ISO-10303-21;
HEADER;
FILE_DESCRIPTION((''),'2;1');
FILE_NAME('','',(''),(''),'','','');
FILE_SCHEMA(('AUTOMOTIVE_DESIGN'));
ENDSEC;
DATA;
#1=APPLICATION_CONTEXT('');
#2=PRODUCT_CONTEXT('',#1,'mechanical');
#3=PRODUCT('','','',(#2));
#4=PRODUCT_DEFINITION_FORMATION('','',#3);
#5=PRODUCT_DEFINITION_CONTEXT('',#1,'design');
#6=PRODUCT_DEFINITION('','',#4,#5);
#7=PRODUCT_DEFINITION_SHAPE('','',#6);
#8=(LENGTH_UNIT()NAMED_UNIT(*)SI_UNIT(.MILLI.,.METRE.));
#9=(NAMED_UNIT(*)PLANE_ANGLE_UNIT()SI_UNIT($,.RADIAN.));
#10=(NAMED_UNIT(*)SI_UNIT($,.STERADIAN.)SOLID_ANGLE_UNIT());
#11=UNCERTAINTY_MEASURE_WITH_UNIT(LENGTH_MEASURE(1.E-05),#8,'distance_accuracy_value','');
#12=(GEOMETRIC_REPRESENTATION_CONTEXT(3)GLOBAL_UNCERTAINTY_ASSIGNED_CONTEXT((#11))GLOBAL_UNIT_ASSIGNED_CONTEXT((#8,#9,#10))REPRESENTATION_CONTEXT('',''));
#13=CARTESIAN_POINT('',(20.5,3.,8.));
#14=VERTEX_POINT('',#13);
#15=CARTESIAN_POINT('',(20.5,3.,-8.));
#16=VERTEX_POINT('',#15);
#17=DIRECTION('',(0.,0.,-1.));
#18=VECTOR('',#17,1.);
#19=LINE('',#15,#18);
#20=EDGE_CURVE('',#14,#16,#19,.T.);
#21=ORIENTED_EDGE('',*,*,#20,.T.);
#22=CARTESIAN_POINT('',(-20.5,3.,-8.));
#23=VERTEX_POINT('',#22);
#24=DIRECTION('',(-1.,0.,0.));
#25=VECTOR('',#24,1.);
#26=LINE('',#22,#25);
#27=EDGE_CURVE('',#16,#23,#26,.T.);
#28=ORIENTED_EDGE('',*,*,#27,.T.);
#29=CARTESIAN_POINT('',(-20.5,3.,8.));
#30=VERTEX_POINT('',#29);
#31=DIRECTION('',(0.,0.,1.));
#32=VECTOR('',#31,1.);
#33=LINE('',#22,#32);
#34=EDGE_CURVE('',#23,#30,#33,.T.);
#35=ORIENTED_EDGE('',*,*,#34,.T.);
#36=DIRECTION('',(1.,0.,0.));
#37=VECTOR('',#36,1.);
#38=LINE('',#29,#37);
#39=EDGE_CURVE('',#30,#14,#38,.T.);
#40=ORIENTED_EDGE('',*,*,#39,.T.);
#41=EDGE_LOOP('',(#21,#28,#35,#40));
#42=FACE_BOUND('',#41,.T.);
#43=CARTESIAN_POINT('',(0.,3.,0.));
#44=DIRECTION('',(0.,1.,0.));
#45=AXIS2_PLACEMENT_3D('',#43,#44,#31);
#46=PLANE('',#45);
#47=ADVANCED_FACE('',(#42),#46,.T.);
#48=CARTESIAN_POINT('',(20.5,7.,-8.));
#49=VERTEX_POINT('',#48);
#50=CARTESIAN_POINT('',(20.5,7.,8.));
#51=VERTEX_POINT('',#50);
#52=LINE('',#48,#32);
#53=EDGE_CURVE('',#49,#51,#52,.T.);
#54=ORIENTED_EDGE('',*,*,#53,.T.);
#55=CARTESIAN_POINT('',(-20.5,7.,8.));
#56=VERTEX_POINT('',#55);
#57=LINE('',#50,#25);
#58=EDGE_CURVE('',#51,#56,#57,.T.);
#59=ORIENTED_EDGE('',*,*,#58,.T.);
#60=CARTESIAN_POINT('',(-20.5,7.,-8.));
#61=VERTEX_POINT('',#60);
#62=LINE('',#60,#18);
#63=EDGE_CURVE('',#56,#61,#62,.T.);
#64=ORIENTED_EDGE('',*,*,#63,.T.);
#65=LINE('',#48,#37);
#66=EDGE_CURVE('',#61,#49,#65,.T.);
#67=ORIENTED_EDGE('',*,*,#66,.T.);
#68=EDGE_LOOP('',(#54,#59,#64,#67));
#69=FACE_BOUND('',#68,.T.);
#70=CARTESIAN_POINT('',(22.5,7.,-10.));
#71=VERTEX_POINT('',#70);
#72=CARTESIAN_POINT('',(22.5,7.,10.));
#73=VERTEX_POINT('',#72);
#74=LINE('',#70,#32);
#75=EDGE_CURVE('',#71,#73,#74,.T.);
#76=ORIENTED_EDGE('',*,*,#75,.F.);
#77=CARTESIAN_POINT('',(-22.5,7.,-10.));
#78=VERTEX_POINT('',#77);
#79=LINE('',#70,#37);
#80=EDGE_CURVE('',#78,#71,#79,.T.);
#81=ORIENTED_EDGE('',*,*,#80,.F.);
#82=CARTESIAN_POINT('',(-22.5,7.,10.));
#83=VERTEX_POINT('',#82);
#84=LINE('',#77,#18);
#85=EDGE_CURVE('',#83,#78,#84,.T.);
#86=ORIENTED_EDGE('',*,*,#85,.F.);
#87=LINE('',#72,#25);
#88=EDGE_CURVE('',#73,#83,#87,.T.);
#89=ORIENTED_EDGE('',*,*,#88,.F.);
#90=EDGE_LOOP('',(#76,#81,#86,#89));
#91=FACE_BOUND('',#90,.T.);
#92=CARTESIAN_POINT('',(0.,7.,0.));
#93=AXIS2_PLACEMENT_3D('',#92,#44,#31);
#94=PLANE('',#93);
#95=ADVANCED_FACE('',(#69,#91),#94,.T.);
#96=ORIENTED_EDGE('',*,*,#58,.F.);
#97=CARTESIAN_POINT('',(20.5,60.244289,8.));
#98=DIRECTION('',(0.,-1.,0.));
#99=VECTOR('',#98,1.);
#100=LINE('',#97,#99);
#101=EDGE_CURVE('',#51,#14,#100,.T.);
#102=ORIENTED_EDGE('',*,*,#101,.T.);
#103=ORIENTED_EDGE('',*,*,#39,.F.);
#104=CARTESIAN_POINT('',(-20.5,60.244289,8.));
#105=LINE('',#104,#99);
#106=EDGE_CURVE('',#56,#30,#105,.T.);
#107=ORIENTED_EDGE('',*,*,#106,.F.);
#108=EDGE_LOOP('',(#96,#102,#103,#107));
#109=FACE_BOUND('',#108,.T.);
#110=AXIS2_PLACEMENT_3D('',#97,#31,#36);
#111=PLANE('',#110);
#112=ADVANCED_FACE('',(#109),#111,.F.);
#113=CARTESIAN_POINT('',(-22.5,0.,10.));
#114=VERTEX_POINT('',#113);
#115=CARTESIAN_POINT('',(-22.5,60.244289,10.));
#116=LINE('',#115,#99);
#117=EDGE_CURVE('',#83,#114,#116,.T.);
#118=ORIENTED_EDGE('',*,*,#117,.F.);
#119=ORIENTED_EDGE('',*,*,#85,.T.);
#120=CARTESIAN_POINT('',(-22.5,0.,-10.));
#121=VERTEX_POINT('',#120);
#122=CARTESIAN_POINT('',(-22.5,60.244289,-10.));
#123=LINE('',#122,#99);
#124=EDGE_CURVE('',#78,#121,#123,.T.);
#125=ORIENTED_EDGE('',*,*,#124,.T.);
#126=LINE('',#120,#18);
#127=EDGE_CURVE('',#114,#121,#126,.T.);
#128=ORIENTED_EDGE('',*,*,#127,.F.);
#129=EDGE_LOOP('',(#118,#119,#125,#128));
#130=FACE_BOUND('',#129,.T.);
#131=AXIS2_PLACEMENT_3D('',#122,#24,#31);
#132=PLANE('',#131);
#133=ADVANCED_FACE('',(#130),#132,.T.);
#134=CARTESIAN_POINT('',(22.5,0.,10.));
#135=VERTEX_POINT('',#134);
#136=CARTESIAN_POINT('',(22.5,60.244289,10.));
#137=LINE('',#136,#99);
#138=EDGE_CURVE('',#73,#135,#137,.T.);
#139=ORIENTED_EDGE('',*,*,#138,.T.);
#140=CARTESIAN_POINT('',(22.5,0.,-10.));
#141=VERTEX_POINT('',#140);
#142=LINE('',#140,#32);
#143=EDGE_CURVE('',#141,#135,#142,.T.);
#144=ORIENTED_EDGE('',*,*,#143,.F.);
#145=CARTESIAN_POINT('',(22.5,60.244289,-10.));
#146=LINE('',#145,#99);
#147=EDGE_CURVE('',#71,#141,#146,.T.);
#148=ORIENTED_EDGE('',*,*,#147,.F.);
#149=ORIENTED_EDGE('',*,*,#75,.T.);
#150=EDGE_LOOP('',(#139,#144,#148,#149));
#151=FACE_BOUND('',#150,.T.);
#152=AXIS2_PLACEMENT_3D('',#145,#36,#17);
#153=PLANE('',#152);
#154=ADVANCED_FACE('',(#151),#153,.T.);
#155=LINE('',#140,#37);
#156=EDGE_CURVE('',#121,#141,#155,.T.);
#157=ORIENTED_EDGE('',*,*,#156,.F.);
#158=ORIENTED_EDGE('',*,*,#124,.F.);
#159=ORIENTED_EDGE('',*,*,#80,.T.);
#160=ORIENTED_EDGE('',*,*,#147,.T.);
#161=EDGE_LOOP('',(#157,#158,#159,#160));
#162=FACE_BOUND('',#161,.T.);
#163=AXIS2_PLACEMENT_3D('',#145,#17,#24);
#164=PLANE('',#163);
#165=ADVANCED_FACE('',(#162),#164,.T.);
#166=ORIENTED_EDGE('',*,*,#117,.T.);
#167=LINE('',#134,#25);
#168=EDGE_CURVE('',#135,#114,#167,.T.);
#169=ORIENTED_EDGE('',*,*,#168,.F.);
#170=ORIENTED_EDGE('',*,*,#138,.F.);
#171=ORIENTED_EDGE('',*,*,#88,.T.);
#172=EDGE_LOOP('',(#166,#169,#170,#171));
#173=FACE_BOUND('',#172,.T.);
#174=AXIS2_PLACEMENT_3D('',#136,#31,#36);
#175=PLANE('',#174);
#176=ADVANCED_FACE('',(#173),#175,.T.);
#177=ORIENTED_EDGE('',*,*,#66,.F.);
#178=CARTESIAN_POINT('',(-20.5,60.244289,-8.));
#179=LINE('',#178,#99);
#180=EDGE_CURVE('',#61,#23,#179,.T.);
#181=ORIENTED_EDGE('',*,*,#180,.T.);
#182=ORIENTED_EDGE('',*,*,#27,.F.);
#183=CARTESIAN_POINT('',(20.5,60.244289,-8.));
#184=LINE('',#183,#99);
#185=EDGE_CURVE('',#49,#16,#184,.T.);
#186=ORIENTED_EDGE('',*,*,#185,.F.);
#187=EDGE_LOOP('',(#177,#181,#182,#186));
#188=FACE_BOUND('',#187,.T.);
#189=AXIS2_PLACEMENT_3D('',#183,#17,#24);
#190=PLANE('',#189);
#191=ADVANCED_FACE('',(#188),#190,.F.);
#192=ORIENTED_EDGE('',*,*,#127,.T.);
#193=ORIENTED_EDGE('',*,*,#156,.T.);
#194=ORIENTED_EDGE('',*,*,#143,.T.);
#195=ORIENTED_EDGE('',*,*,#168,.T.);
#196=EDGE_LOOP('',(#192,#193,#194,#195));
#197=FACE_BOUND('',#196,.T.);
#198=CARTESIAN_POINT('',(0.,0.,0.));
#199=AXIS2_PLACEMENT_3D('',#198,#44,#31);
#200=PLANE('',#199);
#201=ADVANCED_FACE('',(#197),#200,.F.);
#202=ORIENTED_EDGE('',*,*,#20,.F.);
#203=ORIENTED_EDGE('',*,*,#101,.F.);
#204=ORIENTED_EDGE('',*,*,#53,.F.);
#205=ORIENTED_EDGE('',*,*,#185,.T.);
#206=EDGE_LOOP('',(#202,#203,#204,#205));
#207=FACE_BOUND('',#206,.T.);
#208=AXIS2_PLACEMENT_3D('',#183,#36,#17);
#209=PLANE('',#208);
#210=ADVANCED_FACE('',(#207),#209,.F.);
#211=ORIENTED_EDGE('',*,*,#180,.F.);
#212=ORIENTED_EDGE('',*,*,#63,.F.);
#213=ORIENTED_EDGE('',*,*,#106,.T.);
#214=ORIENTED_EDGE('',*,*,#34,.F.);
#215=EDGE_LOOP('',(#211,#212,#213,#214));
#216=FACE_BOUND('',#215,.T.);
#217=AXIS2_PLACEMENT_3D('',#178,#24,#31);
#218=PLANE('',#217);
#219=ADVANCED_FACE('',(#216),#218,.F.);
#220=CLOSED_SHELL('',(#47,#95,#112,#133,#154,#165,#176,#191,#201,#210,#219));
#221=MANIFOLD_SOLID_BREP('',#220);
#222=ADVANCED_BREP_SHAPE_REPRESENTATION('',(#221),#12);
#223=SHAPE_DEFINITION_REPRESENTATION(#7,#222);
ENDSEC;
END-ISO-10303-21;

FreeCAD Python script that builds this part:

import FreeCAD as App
import Part
import Sketcher

doc = App.newDocument("Part")
params = doc.addObject("Spreadsheet::Sheet", "Params")
for row, (alias, value) in enumerate([
    ("sketch1_width", "41 mm"),
    ("sketch1_height", "16 mm"),
    ("pad1_length", "3 mm"),
    ("sketch2_width", "45 mm"),
    ("sketch2_width2", "41 mm"),
    ("sketch2_height", "20 mm"),
    ("sketch2_height2", "16 mm"),
    ("pad2_length", "7 mm"),
], start=1):
    params.set(f"A{row}", alias)
    params.set(f"B{row}", "=" + value)
    params.setAlias(f"B{row}", alias)

body = doc.addObject("PartDesign::Body", "Body")

# Sketch on XZ plane
sketch1 = doc.addObject("Sketcher::SketchObject", "Sketch")
body.addObject(sketch1)
sketch1.AttachmentSupport = (doc.XZ_Plane, [""])
sketch1.MapMode = "FlatFace"
sketch1.addGeometry([
    Part.LineSegment(App.Vector(-20, -8, 0), App.Vector(-20, 8, 0)),
    Part.LineSegment(App.Vector(-20, 8, 0), App.Vector(20, 8, 0)),
    Part.LineSegment(App.Vector(20, 8, 0), App.Vector(20, -8, 0)),
    Part.LineSegment(App.Vector(20, -8, 0), App.Vector(-20, -8, 0)),
], False)
sketch1.addConstraint([
    Sketcher.Constraint("Coincident", 0, 2, 1, 1),
    Sketcher.Constraint("Coincident", 1, 2, 2, 1),
    Sketcher.Constraint("Coincident", 2, 2, 3, 1),
    Sketcher.Constraint("Coincident", 3, 2, 0, 1),
    Sketcher.Constraint("Vertical", 0),
    Sketcher.Constraint("Horizontal", 1),
    Sketcher.Constraint("Vertical", 2),
    Sketcher.Constraint("Horizontal", 3),
    Sketcher.Constraint("Symmetric", 0, 2, 2, 2, -1, 1),
    Sketcher.Constraint("DistanceX", 1, 1, 1, 2, 41.0),
    Sketcher.Constraint("DistanceY", 0, 1, 0, 2, 16.0),
])
sketch1.setExpression("Constraints[9]", "Params.sketch1_width")
sketch1.setExpression("Constraints[10]", "Params.sketch1_height")
pad1 = doc.addObject("PartDesign::Pad", "Pad")
body.addObject(pad1)
pad1.Profile = sketch1
pad1.setExpression("Length", "Params.pad1_length")
pad1.Reversed = True

# Sketch on XZ plane
sketch2 = doc.addObject("Sketcher::SketchObject", "Sketch001")
body.addObject(sketch2)
sketch2.AttachmentSupport = (doc.XZ_Plane, [""])
sketch2.MapMode = "FlatFace"
sketch2.addGeometry([
    Part.LineSegment(App.Vector(-22, 10, 0), App.Vector(-22, -10, 0)),  # 0
    Part.LineSegment(App.Vector(-22, -10, 0), App.Vector(22, -10, 0)),  # 1
    Part.LineSegment(App.Vector(22, -10, 0), App.Vector(22, 10, 0)),  # 2
    Part.LineSegment(App.Vector(22, 10, 0), App.Vector(-22, 10, 0)),  # 3
    Part.LineSegment(App.Vector(20, -8, 0), App.Vector(-20, -8, 0)),  # 4
    Part.LineSegment(App.Vector(-20, -8, 0), App.Vector(-20, 8, 0)),  # 5
    Part.LineSegment(App.Vector(-20, 8, 0), App.Vector(20, 8, 0)),  # 6
    Part.LineSegment(App.Vector(20, 8, 0), App.Vector(20, -8, 0)),  # 7
], False)
sketch2.addConstraint([
    Sketcher.Constraint("Coincident", 0, 2, 1, 1),
    Sketcher.Constraint("Coincident", 1, 2, 2, 1),
    Sketcher.Constraint("Coincident", 2, 2, 3, 1),
    Sketcher.Constraint("Coincident", 3, 2, 0, 1),
    Sketcher.Constraint("Coincident", 4, 2, 5, 1),
    Sketcher.Constraint("Coincident", 5, 2, 6, 1),
    Sketcher.Constraint("Coincident", 6, 2, 7, 1),
    Sketcher.Constraint("Coincident", 7, 2, 4, 1),
    Sketcher.Constraint("Vertical", 0),
    Sketcher.Constraint("Horizontal", 1),
    Sketcher.Constraint("Vertical", 2),
    Sketcher.Constraint("Horizontal", 3),
    Sketcher.Constraint("Horizontal", 4),
    Sketcher.Constraint("Vertical", 5),
    Sketcher.Constraint("Horizontal", 6),
    Sketcher.Constraint("Vertical", 7),
    Sketcher.Constraint("Symmetric", 0, 2, 2, 2, -1, 1),
    Sketcher.Constraint("Symmetric", 4, 2, 6, 2, -1, 1),
    Sketcher.Constraint("DistanceX", 1, 1, 1, 2, 45.0),
    Sketcher.Constraint("DistanceX", 4, 2, 4, 1, 41.0),
    Sketcher.Constraint("DistanceY", 0, 2, 0, 1, 20.0),
    Sketcher.Constraint("DistanceY", 5, 1, 5, 2, 16.0),
])
sketch2.setExpression("Constraints[18]", "Params.sketch2_width")
sketch2.setExpression("Constraints[19]", "Params.sketch2_width2")
sketch2.setExpression("Constraints[20]", "Params.sketch2_height")
sketch2.setExpression("Constraints[21]", "Params.sketch2_height2")
pad2 = doc.addObject("PartDesign::Pad", "Pad001")
body.addObject(pad2)
pad2.Profile = sketch2
pad2.setExpression("Length", "Params.pad2_length")
pad2.Reversed = True

doc.recompute()
